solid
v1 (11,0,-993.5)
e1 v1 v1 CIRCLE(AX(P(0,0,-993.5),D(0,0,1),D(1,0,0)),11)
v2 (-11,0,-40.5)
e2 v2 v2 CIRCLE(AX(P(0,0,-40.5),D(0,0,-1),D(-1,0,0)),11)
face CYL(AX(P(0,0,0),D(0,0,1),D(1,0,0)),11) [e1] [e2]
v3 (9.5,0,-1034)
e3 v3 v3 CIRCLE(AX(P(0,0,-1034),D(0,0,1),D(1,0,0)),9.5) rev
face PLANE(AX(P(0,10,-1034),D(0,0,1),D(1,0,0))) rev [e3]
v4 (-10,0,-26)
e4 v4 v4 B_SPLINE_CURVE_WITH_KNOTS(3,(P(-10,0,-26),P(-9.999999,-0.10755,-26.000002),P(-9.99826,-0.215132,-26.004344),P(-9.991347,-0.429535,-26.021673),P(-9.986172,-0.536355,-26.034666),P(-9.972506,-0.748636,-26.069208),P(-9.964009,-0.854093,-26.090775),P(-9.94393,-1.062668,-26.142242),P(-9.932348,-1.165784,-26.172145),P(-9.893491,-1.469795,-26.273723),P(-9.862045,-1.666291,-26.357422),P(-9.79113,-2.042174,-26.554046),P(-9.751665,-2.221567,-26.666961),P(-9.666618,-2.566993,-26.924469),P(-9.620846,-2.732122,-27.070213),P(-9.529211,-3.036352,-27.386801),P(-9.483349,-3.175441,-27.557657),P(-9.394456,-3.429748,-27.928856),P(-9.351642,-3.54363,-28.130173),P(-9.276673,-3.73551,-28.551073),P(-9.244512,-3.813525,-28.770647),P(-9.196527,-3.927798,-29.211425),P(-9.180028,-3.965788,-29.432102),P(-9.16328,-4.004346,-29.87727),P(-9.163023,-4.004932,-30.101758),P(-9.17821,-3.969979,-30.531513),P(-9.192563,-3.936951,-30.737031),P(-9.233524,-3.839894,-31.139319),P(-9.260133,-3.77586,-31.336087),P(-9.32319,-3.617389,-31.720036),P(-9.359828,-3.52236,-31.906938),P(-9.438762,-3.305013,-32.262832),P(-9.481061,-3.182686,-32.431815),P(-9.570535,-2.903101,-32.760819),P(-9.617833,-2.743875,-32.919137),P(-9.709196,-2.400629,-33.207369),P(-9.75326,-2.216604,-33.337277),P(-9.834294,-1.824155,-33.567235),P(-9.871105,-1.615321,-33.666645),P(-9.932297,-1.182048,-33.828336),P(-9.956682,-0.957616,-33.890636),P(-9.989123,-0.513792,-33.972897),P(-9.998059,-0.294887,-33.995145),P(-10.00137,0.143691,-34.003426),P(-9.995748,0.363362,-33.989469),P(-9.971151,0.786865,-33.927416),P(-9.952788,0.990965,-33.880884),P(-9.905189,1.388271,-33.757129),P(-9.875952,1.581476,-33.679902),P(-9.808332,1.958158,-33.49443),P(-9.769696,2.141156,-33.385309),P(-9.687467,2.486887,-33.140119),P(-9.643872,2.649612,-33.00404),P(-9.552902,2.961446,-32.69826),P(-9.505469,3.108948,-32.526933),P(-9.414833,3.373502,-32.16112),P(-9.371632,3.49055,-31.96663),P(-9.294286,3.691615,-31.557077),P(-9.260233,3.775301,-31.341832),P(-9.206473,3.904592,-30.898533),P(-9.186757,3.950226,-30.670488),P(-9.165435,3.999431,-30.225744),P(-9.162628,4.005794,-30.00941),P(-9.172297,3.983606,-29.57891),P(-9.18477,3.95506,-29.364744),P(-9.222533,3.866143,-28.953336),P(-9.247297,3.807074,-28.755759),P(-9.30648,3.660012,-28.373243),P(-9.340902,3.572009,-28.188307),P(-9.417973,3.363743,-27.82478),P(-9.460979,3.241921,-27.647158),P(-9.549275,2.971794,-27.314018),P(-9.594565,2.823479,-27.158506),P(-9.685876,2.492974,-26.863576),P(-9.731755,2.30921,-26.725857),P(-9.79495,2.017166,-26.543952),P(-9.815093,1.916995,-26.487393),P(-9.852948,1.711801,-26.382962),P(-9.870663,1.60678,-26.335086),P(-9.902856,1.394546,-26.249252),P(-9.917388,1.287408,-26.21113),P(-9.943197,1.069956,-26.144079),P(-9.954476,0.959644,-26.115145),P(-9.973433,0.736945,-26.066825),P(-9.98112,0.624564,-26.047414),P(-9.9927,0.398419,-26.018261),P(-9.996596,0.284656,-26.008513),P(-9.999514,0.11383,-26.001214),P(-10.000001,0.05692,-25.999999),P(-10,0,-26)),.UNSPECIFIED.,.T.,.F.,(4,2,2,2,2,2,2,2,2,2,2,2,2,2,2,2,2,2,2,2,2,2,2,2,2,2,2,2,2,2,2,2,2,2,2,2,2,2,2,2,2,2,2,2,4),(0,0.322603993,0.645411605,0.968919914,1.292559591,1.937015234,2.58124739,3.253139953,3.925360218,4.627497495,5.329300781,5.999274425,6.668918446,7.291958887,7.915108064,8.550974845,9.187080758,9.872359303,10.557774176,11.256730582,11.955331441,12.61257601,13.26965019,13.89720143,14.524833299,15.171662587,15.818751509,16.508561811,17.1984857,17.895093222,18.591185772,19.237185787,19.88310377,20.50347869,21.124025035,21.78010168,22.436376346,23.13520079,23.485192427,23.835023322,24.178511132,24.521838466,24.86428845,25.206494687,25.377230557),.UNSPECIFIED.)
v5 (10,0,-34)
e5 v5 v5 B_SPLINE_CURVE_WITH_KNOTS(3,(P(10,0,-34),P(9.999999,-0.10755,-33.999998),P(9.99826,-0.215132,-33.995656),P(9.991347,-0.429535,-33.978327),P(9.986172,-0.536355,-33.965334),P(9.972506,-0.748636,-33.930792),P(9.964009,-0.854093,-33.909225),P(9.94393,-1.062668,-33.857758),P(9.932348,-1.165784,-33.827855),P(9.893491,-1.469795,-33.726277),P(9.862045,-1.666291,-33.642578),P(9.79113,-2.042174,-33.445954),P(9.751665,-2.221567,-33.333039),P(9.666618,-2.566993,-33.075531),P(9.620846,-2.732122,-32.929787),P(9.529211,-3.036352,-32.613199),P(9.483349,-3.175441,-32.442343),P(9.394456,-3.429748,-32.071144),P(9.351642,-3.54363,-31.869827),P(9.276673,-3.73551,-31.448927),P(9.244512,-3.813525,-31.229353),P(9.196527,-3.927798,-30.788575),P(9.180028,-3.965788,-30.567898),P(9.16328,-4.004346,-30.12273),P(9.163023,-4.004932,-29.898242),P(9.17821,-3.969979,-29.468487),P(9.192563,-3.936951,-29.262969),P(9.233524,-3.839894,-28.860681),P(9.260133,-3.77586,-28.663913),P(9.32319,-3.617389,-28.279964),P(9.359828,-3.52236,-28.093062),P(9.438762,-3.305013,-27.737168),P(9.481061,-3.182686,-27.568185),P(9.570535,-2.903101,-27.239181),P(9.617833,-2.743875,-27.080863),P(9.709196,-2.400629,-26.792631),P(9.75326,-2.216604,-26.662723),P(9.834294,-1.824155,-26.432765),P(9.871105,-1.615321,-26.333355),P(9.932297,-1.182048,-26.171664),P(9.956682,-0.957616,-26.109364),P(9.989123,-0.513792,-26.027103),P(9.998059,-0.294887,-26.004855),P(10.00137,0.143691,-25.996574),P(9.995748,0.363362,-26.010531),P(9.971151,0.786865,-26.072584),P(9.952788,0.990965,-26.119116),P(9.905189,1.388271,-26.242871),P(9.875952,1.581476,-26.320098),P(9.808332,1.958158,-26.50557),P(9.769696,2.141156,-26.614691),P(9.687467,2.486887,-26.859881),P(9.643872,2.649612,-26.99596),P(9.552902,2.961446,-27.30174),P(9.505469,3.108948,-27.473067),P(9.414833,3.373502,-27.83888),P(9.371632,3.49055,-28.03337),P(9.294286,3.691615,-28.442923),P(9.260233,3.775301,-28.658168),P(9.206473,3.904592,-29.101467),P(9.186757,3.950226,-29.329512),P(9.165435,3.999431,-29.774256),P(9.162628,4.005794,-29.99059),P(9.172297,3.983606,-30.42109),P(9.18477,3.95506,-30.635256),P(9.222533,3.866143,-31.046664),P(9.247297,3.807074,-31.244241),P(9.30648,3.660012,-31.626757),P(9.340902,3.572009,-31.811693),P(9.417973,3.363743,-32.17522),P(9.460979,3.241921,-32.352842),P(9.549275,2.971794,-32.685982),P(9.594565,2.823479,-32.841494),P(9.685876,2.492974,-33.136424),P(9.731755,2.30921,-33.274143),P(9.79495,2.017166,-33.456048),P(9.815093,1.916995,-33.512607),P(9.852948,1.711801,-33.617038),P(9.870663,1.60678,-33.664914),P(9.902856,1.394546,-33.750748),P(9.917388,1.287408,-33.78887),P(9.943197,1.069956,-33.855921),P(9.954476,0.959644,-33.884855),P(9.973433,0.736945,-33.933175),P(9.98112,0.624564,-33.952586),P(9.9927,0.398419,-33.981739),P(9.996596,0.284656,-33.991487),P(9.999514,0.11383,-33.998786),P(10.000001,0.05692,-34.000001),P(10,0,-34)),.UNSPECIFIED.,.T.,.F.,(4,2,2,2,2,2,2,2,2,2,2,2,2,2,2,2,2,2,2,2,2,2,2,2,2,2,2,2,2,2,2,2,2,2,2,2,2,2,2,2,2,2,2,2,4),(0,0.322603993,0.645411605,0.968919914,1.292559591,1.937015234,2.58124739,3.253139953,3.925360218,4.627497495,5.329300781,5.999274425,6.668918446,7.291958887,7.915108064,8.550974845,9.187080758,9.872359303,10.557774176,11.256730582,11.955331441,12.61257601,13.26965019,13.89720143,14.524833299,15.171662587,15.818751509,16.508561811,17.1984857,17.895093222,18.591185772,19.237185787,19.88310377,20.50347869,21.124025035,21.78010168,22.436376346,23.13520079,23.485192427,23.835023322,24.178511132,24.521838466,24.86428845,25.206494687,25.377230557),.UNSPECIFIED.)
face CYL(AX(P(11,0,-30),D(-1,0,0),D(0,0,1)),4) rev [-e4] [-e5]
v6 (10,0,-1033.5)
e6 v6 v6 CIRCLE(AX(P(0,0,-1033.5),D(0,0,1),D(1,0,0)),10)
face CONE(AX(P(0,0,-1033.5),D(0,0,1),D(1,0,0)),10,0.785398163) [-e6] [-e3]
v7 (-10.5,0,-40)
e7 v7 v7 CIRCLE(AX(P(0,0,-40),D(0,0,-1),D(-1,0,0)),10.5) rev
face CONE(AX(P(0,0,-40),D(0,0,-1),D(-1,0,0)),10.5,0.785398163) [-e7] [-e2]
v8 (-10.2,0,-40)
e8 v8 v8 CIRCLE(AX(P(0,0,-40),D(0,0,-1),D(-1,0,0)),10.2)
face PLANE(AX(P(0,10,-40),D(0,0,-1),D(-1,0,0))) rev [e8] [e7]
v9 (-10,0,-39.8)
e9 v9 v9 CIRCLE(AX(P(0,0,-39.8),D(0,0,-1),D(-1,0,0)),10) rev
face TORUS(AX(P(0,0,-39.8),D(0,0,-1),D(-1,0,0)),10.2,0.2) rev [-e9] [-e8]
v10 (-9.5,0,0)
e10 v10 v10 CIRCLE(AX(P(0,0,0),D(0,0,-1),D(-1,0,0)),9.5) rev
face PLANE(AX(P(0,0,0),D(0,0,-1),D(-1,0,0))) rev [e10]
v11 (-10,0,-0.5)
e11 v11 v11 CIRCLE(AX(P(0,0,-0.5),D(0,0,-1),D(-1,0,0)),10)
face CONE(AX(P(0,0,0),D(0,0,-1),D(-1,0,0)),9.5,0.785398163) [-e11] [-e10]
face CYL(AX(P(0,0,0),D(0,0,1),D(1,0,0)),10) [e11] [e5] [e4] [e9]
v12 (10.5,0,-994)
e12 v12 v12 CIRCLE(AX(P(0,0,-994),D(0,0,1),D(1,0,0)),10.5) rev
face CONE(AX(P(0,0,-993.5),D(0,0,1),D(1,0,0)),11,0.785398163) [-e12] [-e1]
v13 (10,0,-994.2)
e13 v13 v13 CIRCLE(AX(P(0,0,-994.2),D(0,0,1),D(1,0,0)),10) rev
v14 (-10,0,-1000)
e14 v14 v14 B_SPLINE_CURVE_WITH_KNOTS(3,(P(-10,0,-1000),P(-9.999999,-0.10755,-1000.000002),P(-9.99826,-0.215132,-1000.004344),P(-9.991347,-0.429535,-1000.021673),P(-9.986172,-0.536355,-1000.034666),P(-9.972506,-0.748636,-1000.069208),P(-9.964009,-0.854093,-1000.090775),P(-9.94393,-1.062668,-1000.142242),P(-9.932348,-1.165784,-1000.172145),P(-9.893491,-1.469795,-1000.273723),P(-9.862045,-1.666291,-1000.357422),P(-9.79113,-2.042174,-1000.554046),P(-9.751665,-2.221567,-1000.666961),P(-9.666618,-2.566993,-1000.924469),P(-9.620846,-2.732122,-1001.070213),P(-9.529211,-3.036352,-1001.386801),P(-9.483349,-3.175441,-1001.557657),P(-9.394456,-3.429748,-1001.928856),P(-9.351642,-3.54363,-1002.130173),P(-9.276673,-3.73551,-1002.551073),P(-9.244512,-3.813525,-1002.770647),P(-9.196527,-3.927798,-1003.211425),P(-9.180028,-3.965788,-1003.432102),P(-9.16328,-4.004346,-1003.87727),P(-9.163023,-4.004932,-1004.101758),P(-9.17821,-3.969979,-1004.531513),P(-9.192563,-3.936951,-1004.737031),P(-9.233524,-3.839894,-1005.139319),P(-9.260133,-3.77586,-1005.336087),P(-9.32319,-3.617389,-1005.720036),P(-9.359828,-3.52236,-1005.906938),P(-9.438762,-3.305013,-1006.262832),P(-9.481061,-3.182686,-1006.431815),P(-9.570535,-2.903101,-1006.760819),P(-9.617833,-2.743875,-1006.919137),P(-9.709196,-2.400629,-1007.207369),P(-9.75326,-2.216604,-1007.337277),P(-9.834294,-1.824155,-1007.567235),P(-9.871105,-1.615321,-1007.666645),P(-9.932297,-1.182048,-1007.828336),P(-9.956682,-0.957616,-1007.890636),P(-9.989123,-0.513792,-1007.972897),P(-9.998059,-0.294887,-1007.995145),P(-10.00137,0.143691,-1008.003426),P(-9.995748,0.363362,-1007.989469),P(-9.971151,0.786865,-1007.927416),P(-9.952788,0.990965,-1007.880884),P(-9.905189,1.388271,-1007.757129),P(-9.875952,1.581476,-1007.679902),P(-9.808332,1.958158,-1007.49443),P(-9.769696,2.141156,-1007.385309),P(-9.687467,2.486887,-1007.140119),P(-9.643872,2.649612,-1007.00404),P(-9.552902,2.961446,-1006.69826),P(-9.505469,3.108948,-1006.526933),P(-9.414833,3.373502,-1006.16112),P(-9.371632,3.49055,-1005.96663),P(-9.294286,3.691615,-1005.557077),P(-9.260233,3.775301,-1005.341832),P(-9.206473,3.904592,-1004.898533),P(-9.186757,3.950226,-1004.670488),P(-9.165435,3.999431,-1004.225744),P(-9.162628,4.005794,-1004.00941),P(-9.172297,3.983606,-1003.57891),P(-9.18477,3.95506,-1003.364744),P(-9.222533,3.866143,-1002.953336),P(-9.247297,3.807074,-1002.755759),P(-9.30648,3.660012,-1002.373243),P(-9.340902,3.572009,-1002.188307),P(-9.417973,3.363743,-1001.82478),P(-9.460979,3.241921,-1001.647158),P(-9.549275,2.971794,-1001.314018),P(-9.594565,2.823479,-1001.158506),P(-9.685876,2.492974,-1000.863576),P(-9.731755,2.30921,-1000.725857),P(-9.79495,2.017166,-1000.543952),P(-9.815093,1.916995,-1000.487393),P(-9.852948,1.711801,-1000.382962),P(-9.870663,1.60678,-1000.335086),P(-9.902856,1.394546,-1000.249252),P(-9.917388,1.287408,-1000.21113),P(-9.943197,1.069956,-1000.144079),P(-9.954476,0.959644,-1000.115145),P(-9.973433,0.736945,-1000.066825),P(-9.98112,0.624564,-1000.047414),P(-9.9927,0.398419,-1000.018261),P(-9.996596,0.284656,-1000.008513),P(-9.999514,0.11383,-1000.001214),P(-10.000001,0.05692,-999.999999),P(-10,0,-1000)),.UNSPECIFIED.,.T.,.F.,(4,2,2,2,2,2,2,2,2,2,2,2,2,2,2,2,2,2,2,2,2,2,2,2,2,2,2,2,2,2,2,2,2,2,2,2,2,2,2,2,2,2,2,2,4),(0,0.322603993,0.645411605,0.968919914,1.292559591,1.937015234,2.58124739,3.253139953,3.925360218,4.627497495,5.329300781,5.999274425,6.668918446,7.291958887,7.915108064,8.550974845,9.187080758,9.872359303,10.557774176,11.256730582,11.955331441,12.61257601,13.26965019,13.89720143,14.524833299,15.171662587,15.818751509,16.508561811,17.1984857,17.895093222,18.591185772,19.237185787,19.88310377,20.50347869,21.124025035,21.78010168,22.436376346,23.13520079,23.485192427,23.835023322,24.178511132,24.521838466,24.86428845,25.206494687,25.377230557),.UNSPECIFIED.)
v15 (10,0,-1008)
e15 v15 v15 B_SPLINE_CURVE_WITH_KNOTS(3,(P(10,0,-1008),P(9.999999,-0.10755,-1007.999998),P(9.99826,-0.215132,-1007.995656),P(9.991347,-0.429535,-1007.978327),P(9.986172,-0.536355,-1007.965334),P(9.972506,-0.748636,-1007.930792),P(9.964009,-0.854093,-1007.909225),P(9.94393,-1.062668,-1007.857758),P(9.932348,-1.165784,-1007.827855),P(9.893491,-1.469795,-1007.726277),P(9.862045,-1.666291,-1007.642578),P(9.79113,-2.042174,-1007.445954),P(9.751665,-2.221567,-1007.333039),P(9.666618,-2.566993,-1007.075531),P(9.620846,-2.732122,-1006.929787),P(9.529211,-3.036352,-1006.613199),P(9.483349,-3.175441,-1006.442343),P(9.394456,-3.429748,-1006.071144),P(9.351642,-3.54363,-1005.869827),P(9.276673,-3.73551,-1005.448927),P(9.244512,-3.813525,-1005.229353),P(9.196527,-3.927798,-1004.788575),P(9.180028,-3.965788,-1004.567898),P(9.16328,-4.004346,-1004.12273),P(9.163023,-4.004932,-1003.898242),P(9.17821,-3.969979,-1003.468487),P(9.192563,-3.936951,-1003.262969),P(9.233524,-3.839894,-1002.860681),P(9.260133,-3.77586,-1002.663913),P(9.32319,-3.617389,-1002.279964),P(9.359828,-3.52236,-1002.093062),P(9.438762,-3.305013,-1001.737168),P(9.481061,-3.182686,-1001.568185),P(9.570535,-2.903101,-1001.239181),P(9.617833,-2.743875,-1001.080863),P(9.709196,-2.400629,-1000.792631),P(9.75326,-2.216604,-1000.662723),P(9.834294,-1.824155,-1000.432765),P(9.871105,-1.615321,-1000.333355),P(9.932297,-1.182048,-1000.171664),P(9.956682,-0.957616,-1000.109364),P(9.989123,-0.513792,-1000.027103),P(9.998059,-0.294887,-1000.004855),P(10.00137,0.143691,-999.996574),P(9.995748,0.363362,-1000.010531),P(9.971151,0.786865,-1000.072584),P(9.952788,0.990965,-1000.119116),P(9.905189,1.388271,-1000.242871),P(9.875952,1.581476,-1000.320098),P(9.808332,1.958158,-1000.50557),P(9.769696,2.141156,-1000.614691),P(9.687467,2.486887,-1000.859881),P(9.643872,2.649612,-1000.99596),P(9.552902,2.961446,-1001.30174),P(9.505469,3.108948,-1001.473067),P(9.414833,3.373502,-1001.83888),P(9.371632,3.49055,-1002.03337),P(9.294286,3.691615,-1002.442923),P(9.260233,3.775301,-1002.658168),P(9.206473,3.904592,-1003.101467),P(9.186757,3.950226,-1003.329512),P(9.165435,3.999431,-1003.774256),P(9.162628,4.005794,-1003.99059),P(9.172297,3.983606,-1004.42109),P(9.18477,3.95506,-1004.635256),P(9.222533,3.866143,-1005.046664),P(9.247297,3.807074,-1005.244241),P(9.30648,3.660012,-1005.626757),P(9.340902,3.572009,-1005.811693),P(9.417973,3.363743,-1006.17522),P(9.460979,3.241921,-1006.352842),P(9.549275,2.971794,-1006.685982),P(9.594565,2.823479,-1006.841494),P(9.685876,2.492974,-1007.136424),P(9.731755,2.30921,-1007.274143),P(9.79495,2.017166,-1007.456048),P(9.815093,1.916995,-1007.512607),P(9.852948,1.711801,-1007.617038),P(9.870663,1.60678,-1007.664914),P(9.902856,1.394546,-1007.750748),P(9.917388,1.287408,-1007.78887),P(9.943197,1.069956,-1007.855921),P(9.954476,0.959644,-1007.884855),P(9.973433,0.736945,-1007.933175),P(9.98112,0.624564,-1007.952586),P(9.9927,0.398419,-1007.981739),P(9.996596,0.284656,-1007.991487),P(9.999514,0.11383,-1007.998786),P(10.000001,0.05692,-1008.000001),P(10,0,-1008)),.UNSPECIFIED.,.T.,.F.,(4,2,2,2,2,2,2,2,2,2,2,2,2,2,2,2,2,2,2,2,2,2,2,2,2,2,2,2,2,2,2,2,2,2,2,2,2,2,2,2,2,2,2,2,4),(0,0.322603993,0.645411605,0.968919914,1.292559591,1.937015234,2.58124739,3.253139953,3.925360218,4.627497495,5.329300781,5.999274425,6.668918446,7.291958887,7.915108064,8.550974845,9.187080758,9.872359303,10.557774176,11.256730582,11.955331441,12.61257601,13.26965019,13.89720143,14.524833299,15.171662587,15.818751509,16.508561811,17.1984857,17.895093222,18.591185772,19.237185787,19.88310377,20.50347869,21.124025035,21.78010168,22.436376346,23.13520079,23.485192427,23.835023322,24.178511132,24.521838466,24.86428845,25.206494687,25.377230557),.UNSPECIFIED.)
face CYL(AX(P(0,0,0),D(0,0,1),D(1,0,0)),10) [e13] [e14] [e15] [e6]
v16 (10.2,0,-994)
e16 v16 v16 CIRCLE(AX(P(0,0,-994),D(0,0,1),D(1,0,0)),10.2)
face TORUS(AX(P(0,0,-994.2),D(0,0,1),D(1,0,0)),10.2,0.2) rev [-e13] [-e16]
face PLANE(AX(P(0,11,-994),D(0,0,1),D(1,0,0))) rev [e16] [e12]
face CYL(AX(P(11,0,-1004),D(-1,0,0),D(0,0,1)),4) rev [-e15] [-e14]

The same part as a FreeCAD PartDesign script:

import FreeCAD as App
import Part
import Sketcher

V = App.Vector


def edges_at(feature, points):
    """Names of the edges that pass closest to the given points."""
    edges = feature.Shape.Edges
    near = lambda p: min(range(len(edges)), key=lambda i: edges[i].distToShape(Part.Vertex(*p))[0])
    return sorted({f"Edge{near(p) + 1}" for p in points})

doc = App.newDocument("Part")
body = doc.addObject("PartDesign::Body", "Body")

sketch1 = body.newObject("Sketcher::SketchObject", "Sketch")
sketch1.AttachmentSupport = (doc.getObject("YZ_Plane"), [""])
sketch1.MapMode = "FlatFace"
sketch1.addGeometry([
    Part.LineSegment(V(10, 0, 0), V(0, 0, 0)),
    Part.LineSegment(V(0, 0, 0), V(0, -1034, 0)),
    Part.LineSegment(V(0, -1034, 0), V(10, -1034, 0)),
    Part.LineSegment(V(10, -1034, 0), V(10, -994, 0)),
    Part.LineSegment(V(10, -994, 0), V(11, -994, 0)),
    Part.LineSegment(V(11, -994, 0), V(11, -40, 0)),
    Part.LineSegment(V(11, -40, 0), V(10, -40, 0)),
    Part.LineSegment(V(10, -40, 0), V(10, 0, 0)),
], False)
sketch1.addConstraint([
    Sketcher.Constraint("Coincident", 0, 2, 1, 1),
    Sketcher.Constraint("Coincident", 1, 2, 2, 1),
    Sketcher.Constraint("Coincident", 2, 2, 3, 1),
    Sketcher.Constraint("Coincident", 3, 2, 4, 1),
    Sketcher.Constraint("Coincident", 4, 2, 5, 1),
    Sketcher.Constraint("Coincident", 5, 2, 6, 1),
    Sketcher.Constraint("Coincident", 6, 2, 7, 1),
    Sketcher.Constraint("Coincident", 7, 2, 0, 1),
    Sketcher.Constraint("Horizontal", 0),
    Sketcher.Constraint("Vertical", 1),
    Sketcher.Constraint("Horizontal", 2),
    Sketcher.Constraint("Vertical", 3),
    Sketcher.Constraint("Horizontal", 4),
    Sketcher.Constraint("Vertical", 5),
    Sketcher.Constraint("Horizontal", 6),
    Sketcher.Constraint("Vertical", 7),
    Sketcher.Constraint("Coincident", 0, 2, -1, 1),
    Sketcher.Constraint("Vertical", 3, 2, 6, 2),
    Sketcher.Constraint("Equal", 3, 7),
    Sketcher.Constraint("DistanceX", 0, 2, 0, 1, 10.0),
    Sketcher.Constraint("DistanceX", 4, 1, 4, 2, 1.0),
    Sketcher.Constraint("DistanceY", 1, 2, 1, 1, 1034.0),
    Sketcher.Constraint("DistanceY", 3, 1, 3, 2, 40.0),
])
revolution = body.newObject("PartDesign::Revolution", "Revolution")
revolution.Profile = sketch1
revolution.ReferenceAxis = (sketch1, ["V_Axis"])
revolution.Angle = 360

sketch2 = body.newObject("Sketcher::SketchObject", "Sketch001")
sketch2.AttachmentSupport = (doc.getObject("YZ_Plane"), [""])
sketch2.MapMode = "FlatFace"
sketch2.AttachmentOffset = App.Placement(V(0, 0, -10), App.Rotation())
sketch2.addGeometry(Part.Circle(V(0, -30, 0), V(0, 0, 1), 4), False)
sketch2.addConstraint([
    Sketcher.Constraint("PointOnObject", 0, 3, -2),
    Sketcher.Constraint("Diameter", 0, 8.0),
    Sketcher.Constraint("DistanceY", 0, 3, -1, 1, 30.0),
])
pocket1 = body.newObject("PartDesign::Pocket", "Pocket")
pocket1.Profile = sketch2
pocket1.Type = "ThroughAll"
pocket1.Reversed = True

sketch3 = body.newObject("Sketcher::SketchObject", "Sketch002")
sketch3.AttachmentSupport = (doc.getObject("YZ_Plane"), [""])
sketch3.MapMode = "FlatFace"
sketch3.AttachmentOffset = App.Placement(V(0, 0, -10), App.Rotation())
sketch3.addGeometry(Part.Circle(V(0, -1004, 0), V(0, 0, 1), 4), False)
sketch3.addConstraint([
    Sketcher.Constraint("PointOnObject", 0, 3, -2),
    Sketcher.Constraint("Diameter", 0, 8.0),
    Sketcher.Constraint("DistanceY", 0, 3, -1, 1, 1004.0),
])
pocket2 = body.newObject("PartDesign::Pocket", "Pocket001")
pocket2.Profile = sketch3
pocket2.Type = "ThroughAll"
pocket2.Reversed = True
doc.recompute()

fillet = body.newObject("PartDesign::Fillet", "Fillet")
fillet.Base = (pocket2, edges_at(pocket2, [(-10, 0, -994), (-10, 0, -40)]))
fillet.Radius = 0.2
doc.recompute()

chamfer = body.newObject("PartDesign::Chamfer", "Chamfer")
chamfer.Base = (fillet, edges_at(fillet, [
    (-10, 0, -1034),
    (-11, 0, -994),
    (-11, 0, -40),
    (-10, 0, 0),
]))
chamfer.Size = 0.5

doc.recompute()
